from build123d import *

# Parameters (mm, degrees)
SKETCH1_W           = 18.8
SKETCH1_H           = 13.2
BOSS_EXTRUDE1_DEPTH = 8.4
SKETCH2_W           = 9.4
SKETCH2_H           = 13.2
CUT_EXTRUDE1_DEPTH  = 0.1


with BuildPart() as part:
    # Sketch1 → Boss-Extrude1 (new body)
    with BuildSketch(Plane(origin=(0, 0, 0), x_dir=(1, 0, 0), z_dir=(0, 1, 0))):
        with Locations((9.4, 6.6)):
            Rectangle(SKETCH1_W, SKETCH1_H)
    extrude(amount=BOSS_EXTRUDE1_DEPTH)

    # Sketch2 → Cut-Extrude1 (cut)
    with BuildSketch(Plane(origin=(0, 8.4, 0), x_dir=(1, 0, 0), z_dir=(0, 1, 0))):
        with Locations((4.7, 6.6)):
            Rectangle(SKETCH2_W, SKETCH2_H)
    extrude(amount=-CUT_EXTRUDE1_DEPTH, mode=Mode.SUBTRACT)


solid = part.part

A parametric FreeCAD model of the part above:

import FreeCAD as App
import Part
import Sketcher


def add_polygon(sketch, points):
    """Adds a closed chain of lines whose ends are joined by coincident constraints."""
    first, n = sketch.GeometryCount, len(points)
    for a, b in zip(points, points[1:] + points[:1]):
        sketch.addGeometry(Part.LineSegment(App.Vector(*a, 0), App.Vector(*b, 0)), False)
    for i in range(n):
        sketch.addConstraint(Sketcher.Constraint("Coincident", first + i, 2, first + (i + 1) % n, 1))

doc = App.newDocument("Part")
body = doc.addObject("PartDesign::Body", "Body")

sketch1 = body.newObject("Sketcher::SketchObject", "Sketch")
sketch1.AttachmentSupport = (doc.getObject("XZ_Plane"), [""])
sketch1.MapMode = "FlatFace"
add_polygon(sketch1, [(0, -13), (0, 0), (19, 0), (19, -13)])
sketch1.addConstraint([
    Sketcher.Constraint("Vertical", 0),
    Sketcher.Constraint("Horizontal", 1),
    Sketcher.Constraint("Vertical", 2),
    Sketcher.Constraint("Horizontal", 3),
    Sketcher.Constraint("Coincident", 0, 2, -1, 1),
    Sketcher.Constraint("DistanceX", 1, 1, 1, 2, 18.8),
    Sketcher.Constraint("DistanceY", 0, 1, 0, 2, 13.2),
])
pad1 = body.newObject("PartDesign::Pad", "Pad")
pad1.Profile = sketch1
pad1.Length = 8.4
pad1.Reversed = True

sketch2 = body.newObject("Sketcher::SketchObject", "Sketch001")
sketch2.AttachmentSupport = (doc.getObject("XZ_Plane"), [""])
sketch2.MapMode = "FlatFace"
sketch2.AttachmentOffset = App.Placement(App.Vector(0, 0, -8.4), App.Rotation())
add_polygon(sketch2, [(0, -13), (0, 0), (9, 0), (9, -13)])
sketch2.addConstraint([
    Sketcher.Constraint("Vertical", 0),
    Sketcher.Constraint("Horizontal", 1),
    Sketcher.Constraint("Vertical", 2),
    Sketcher.Constraint("Horizontal", 3),
    Sketcher.Constraint("Coincident", 0, 2, -1, 1),
    Sketcher.Constraint("DistanceX", 1, 1, 1, 2, 9.4),
    Sketcher.Constraint("DistanceY", 0, 1, 0, 2, 13.2),
])
pocket1 = body.newObject("PartDesign::Pocket", "Pocket")
pocket1.Profile = sketch2
pocket1.Length = 0.1
pocket1.Reversed = True

doc.recompute()
